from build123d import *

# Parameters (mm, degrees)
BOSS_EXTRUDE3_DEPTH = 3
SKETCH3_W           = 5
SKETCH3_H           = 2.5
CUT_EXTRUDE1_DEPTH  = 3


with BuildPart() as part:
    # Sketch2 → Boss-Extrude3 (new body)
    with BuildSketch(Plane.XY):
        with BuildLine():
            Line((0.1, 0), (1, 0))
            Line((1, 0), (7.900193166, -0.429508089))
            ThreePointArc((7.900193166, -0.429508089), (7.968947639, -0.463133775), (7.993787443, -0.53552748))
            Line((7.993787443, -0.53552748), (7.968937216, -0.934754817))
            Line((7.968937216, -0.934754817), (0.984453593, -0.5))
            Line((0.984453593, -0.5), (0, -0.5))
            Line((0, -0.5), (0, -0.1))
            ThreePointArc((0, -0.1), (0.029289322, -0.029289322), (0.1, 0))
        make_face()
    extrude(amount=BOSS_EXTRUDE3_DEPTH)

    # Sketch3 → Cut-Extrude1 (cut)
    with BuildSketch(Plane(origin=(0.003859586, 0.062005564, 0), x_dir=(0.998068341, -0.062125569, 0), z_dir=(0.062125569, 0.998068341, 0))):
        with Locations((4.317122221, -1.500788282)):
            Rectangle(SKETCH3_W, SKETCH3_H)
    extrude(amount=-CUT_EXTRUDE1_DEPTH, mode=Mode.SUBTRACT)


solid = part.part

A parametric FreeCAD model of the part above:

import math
import FreeCAD as App
import Part
import Sketcher
Q = App.Units.Quantity


def add_polygon(sketch, points):
    """Adds a closed chain of lines whose ends are joined by coincident constraints."""
    first, n = sketch.GeometryCount, len(points)
    for a, b in zip(points, points[1:] + points[:1]):
        sketch.addGeometry(Part.LineSegment(App.Vector(*a, 0), App.Vector(*b, 0)), False)
    for i in range(n):
        sketch.addConstraint(Sketcher.Constraint("Coincident", first + i, 2, first + (i + 1) % n, 1))

doc = App.newDocument("Part")
body = doc.addObject("PartDesign::Body", "Body")

sketch1 = body.newObject("Sketcher::SketchObject", "Sketch")
sketch1.AttachmentSupport = (doc.getObject("XY_Plane"), [""])
sketch1.MapMode = "FlatFace"
sketch1.addGeometry(Part.LineSegment(App.Vector(1, 0, 0), App.Vector(0.1, 0, 0)), False)
sketch1.addGeometry(Part.ArcOfCircle(Part.Circle(App.Vector(0.1, -0.1, 0), App.Vector(0, 0, 1), 0.1), math.radians(90), math.radians(180)), False)
sketch1.addGeometry(Part.LineSegment(App.Vector(0, -0.1, 0), App.Vector(0, -0.5, 0)), False)
sketch1.addGeometry(Part.LineSegment(App.Vector(0, -0.5, 0), App.Vector(0.984454, -0.5, 0)), False)
sketch1.addGeometry(Part.LineSegment(App.Vector(0.984454, -0.5, 0), App.Vector(7.968937, -0.934755, 0)), False)
sketch1.addGeometry(Part.LineSegment(App.Vector(7.968937, -0.934755, 0), App.Vector(7.993787, -0.535527, 0)), False)
sketch1.addGeometry(Part.ArcOfCircle(Part.Circle(App.Vector(7.893981, -0.529315, 0), App.Vector(0, 0, 1), 0.1), math.radians(-3.561827), math.radians(86.438173)), False)
sketch1.addGeometry(Part.LineSegment(App.Vector(7.900193, -0.429508, 0), App.Vector(1, 0, 0)), False)
sketch1.addConstraint(Sketcher.Constraint("Tangent", 0, 2, 1, 1))
sketch1.addConstraint(Sketcher.Constraint("Tangent", 1, 2, 2, 1))
sketch1.addConstraint(Sketcher.Constraint("Coincident", 2, 2, 3, 1))
sketch1.addConstraint(Sketcher.Constraint("Coincident", 3, 2, 4, 1))
sketch1.addConstraint(Sketcher.Constraint("Coincident", 4, 2, 5, 1))
sketch1.addConstraint(Sketcher.Constraint("Tangent", 5, 2, 6, 1))
sketch1.addConstraint(Sketcher.Constraint("Tangent", 6, 2, 7, 1))
sketch1.addConstraint(Sketcher.Constraint("Coincident", 7, 2, 0, 1))
sketch1.addConstraint(Sketcher.Constraint("Horizontal", 0))
sketch1.addConstraint(Sketcher.Constraint("Vertical", 2))
sketch1.addConstraint(Sketcher.Constraint("Horizontal", 3))
sketch1.addConstraint(Sketcher.Constraint("Equal", 1, 6))
sketch1.addConstraint(Sketcher.Constraint("PointOnObject", 0, 2, -1))
sketch1.addConstraint(Sketcher.Constraint("PointOnObject", 1, 2, -2))
sketch1.addConstraint(Sketcher.Constraint("Perpendicular", 4, 5))
sketch1.addConstraint(Sketcher.Constraint("Perpendicular", 5, 7))
sketch1.addConstraint(Sketcher.Constraint("Radius", 1, Q("0.1 mm")))
sketch1.addConstraint(Sketcher.Constraint("DistanceX", 0, 2, 0, 1, Q("0.9 mm")))
sketch1.addConstraint(Sketcher.Constraint("DistanceY", 2, 2, 2, 1, Q("0.4 mm")))
sketch1.addConstraint(Sketcher.Constraint("Distance", 5, Q("0.4 mm")))
sketch1.addConstraint(Sketcher.Constraint("Distance", 4, Q("6.998001 mm")))
sketch1.addConstraint(Sketcher.Constraint("DistanceX", 3, 1, 3, 2, Q("0.984454 mm")))
pad1 = body.newObject("PartDesign::Pad", "Pad")
pad1.Profile = sketch1
pad1.Length = 3

sketch2 = body.newObject("Sketcher::SketchObject", "Sketch001")
sketch2.Placement = App.Placement(App.Vector(0.00386, 0.062006, 0), App.Rotation(App.Vector(0.998068341, -0.062125569, 0), App.Vector(0, 0, -1), App.Vector(0.062125569, 0.998068341, 0), "ZXY"))
add_polygon(sketch2, [(1.817122, -0.250788), (1.817122, -2.750788), (6.817122, -2.750788), (6.817122, -0.250788)])
sketch2.addConstraint(Sketcher.Constraint("Vertical", 0))
sketch2.addConstraint(Sketcher.Constraint("Horizontal", 1))
sketch2.addConstraint(Sketcher.Constraint("Vertical", 2))
sketch2.addConstraint(Sketcher.Constraint("Horizontal", 3))
sketch2.addConstraint(Sketcher.Constraint("DistanceX", 1, 1, 1, 2, Q("5 mm")))
sketch2.addConstraint(Sketcher.Constraint("DistanceY", 0, 2, 0, 1, Q("2.5 mm")))
sketch2.addConstraint(Sketcher.Constraint("DistanceY", 0, 2, -1, 1, Q("2.750788 mm")))
sketch2.addConstraint(Sketcher.Constraint("DistanceX", -1, 1, 0, 2, Q("1.817122 mm")))
pocket1 = body.newObject("PartDesign::Pocket", "Pocket")
pocket1.Profile = sketch2
pocket1.Length = 3

doc.recompute()
